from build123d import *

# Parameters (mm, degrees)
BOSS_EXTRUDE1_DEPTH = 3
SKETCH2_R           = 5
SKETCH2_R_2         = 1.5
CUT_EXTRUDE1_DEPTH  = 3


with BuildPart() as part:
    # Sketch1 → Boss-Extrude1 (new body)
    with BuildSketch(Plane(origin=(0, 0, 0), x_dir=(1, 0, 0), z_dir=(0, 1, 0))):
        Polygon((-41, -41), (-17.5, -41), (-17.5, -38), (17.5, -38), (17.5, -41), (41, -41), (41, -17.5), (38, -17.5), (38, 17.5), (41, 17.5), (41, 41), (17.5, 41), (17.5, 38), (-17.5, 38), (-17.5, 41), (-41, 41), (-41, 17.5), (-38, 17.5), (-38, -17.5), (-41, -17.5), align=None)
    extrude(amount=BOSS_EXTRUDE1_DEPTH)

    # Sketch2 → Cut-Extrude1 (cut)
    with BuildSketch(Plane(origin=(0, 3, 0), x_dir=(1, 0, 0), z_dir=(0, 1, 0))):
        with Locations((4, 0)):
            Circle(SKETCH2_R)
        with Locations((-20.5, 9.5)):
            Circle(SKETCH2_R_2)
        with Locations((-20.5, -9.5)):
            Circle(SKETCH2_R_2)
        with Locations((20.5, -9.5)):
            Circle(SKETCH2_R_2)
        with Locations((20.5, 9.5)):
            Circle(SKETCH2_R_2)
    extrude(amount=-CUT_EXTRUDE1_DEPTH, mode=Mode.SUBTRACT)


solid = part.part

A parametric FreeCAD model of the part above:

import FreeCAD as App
import Part
import Sketcher
Q = App.Units.Quantity

doc = App.newDocument("Part")
body = doc.addObject("PartDesign::Body", "Body")

sketch1 = doc.addObject("Sketcher::SketchObject", "Sketch")
body.addObject(sketch1)
sketch1.AttachmentSupport = (doc.XZ_Plane, [""])
sketch1.MapMode = "FlatFace"
sketch1.addGeometry([
    Part.LineSegment(App.Vector(-41, 41, 0), App.Vector(-17.5, 41, 0)),
    Part.LineSegment(App.Vector(-17.5, 41, 0), App.Vector(-17.5, 38, 0)),
    Part.LineSegment(App.Vector(-17.5, 38, 0), App.Vector(17.5, 38, 0)),
    Part.LineSegment(App.Vector(17.5, 38, 0), App.Vector(17.5, 41, 0)),
    Part.LineSegment(App.Vector(17.5, 41, 0), App.Vector(41, 41, 0)),
    Part.LineSegment(App.Vector(41, 41, 0), App.Vector(41, 17.5, 0)),
    Part.LineSegment(App.Vector(41, 17.5, 0), App.Vector(38, 17.5, 0)),
    Part.LineSegment(App.Vector(38, 17.5, 0), App.Vector(38, -17.5, 0)),
    Part.LineSegment(App.Vector(38, -17.5, 0), App.Vector(41, -17.5, 0)),
    Part.LineSegment(App.Vector(41, -17.5, 0), App.Vector(41, -41, 0)),
    Part.LineSegment(App.Vector(41, -41, 0), App.Vector(17.5, -41, 0)),
    Part.LineSegment(App.Vector(17.5, -41, 0), App.Vector(17.5, -38, 0)),
    Part.LineSegment(App.Vector(17.5, -38, 0), App.Vector(-17.5, -38, 0)),
    Part.LineSegment(App.Vector(-17.5, -38, 0), App.Vector(-17.5, -41, 0)),
    Part.LineSegment(App.Vector(-17.5, -41, 0), App.Vector(-41, -41, 0)),
    Part.LineSegment(App.Vector(-41, -41, 0), App.Vector(-41, -17.5, 0)),
    Part.LineSegment(App.Vector(-41, -17.5, 0), App.Vector(-38, -17.5, 0)),
    Part.LineSegment(App.Vector(-38, -17.5, 0), App.Vector(-38, 17.5, 0)),
    Part.LineSegment(App.Vector(-38, 17.5, 0), App.Vector(-41, 17.5, 0)),
    Part.LineSegment(App.Vector(-41, 17.5, 0), App.Vector(-41, 41, 0)),
], False)
sketch1.addConstraint([
    Sketcher.Constraint("Coincident", 0, 2, 1, 1),
    Sketcher.Constraint("Coincident", 1, 2, 2, 1),
    Sketcher.Constraint("Coincident", 2, 2, 3, 1),
    Sketcher.Constraint("Coincident", 3, 2, 4, 1),
    Sketcher.Constraint("Coincident", 4, 2, 5, 1),
    Sketcher.Constraint("Coincident", 5, 2, 6, 1),
    Sketcher.Constraint("Coincident", 6, 2, 7, 1),
    Sketcher.Constraint("Coincident", 7, 2, 8, 1),
    Sketcher.Constraint("Coincident", 8, 2, 9, 1),
    Sketcher.Constraint("Coincident", 9, 2, 10, 1),
    Sketcher.Constraint("Coincident", 10, 2, 11, 1),
    Sketcher.Constraint("Coincident", 11, 2, 12, 1),
    Sketcher.Constraint("Coincident", 12, 2, 13, 1),
    Sketcher.Constraint("Coincident", 13, 2, 14, 1),
    Sketcher.Constraint("Coincident", 14, 2, 15, 1),
    Sketcher.Constraint("Coincident", 15, 2, 16, 1),
    Sketcher.Constraint("Coincident", 16, 2, 17, 1),
    Sketcher.Constraint("Coincident", 17, 2, 18, 1),
    Sketcher.Constraint("Coincident", 18, 2, 19, 1),
    Sketcher.Constraint("Coincident", 19, 2, 0, 1),
    Sketcher.Constraint("Horizontal", 0),
    Sketcher.Constraint("Vertical", 1),
    Sketcher.Constraint("Horizontal", 2),
    Sketcher.Constraint("Vertical", 3),
    Sketcher.Constraint("Horizontal", 4),
    Sketcher.Constraint("Vertical", 5),
    Sketcher.Constraint("Horizontal", 6),
    Sketcher.Constraint("Vertical", 7),
    Sketcher.Constraint("Horizontal", 8),
    Sketcher.Constraint("Vertical", 9),
    Sketcher.Constraint("Horizontal", 10),
    Sketcher.Constraint("Vertical", 11),
    Sketcher.Constraint("Horizontal", 12),
    Sketcher.Constraint("Vertical", 13),
    Sketcher.Constraint("Horizontal", 14),
    Sketcher.Constraint("Vertical", 15),
    Sketcher.Constraint("Horizontal", 16),
    Sketcher.Constraint("Vertical", 17),
    Sketcher.Constraint("Horizontal", 18),
    Sketcher.Constraint("Vertical", 19),
    Sketcher.Constraint("Symmetric", 0, 2, 10, 2, -1, 1),
    Sketcher.Constraint("Symmetric", 2, 2, 12, 2, -1, 1),
    Sketcher.Constraint("Symmetric", 4, 2, 14, 2, -1, 1),
    Sketcher.Constraint("Symmetric", 6, 2, 16, 2, -1, 1),
    Sketcher.Constraint("Symmetric", 8, 2, 18, 2, -1, 1),
    Sketcher.Constraint("Symmetric", 0, 2, 3, 2, -2),
    Sketcher.Constraint("Symmetric", 8, 2, 15, 2, -2),
    Sketcher.Constraint("Equal", 18, 1),
    Sketcher.Constraint("Equal", 14, 5),
    Sketcher.Constraint("Equal", 12, 7),
    Sketcher.Constraint("DistanceX", 2, 1, 2, 2, Q("35 mm")),
    Sketcher.Constraint("DistanceX", 6, 2, 6, 1, Q("3 mm")),
    Sketcher.Constraint("DistanceX", 0, 1, 0, 2, Q("23.5 mm")),
])
pad1 = doc.addObject("PartDesign::Pad", "Pad")
body.addObject(pad1)
pad1.Profile = sketch1
pad1.Length = 3
pad1.Reversed = True

sketch2 = doc.addObject("Sketcher::SketchObject", "Sketch001")
body.addObject(sketch2)
sketch2.AttachmentSupport = (doc.XZ_Plane, [""])
sketch2.MapMode = "FlatFace"
sketch2.AttachmentOffset = App.Placement(App.Vector(0, 0, -3), App.Rotation())
sketch2.addGeometry([
    Part.Circle(App.Vector(4, 0, 0), App.Vector(0, 0, 1), 5),
    Part.Circle(App.Vector(-20.5, -9.5, 0), App.Vector(0, 0, 1), 1.5),
    Part.Circle(App.Vector(-20.5, 9.5, 0), App.Vector(0, 0, 1), 1.5),
    Part.Circle(App.Vector(20.5, 9.5, 0), App.Vector(0, 0, 1), 1.5),
    Part.Circle(App.Vector(20.5, -9.5, 0), App.Vector(0, 0, 1), 1.5),
], False)
sketch2.addConstraint([
    Sketcher.Constraint("Equal", 1, 2),
    Sketcher.Constraint("Equal", 2, 3),
    Sketcher.Constraint("Equal", 3, 4),
    Sketcher.Constraint("Symmetric", 1, 3, 3, 3, -1, 1),
    Sketcher.Constraint("Symmetric", 2, 3, 4, 3, -1, 1),
    Sketcher.Constraint("Symmetric", 2, 3, 3, 3, -2),
    Sketcher.Constraint("PointOnObject", 0, 3, -1),
    Sketcher.Constraint("Diameter", 0, Q("10 mm")),
    Sketcher.Constraint("Diameter", 1, Q("3 mm")),
    Sketcher.Constraint("DistanceX", -1, 1, 0, 3, Q("4 mm")),
    Sketcher.Constraint("DistanceY", 1, 3, 2, 3, Q("19 mm")),
    Sketcher.Constraint("DistanceX", 2, 3, 3, 3, Q("41 mm")),
])
pocket1 = doc.addObject("PartDesign::Pocket", "Pocket")
body.addObject(pocket1)
pocket1.Profile = sketch2
pocket1.Length = 3
pocket1.Reversed = True

doc.recompute()
